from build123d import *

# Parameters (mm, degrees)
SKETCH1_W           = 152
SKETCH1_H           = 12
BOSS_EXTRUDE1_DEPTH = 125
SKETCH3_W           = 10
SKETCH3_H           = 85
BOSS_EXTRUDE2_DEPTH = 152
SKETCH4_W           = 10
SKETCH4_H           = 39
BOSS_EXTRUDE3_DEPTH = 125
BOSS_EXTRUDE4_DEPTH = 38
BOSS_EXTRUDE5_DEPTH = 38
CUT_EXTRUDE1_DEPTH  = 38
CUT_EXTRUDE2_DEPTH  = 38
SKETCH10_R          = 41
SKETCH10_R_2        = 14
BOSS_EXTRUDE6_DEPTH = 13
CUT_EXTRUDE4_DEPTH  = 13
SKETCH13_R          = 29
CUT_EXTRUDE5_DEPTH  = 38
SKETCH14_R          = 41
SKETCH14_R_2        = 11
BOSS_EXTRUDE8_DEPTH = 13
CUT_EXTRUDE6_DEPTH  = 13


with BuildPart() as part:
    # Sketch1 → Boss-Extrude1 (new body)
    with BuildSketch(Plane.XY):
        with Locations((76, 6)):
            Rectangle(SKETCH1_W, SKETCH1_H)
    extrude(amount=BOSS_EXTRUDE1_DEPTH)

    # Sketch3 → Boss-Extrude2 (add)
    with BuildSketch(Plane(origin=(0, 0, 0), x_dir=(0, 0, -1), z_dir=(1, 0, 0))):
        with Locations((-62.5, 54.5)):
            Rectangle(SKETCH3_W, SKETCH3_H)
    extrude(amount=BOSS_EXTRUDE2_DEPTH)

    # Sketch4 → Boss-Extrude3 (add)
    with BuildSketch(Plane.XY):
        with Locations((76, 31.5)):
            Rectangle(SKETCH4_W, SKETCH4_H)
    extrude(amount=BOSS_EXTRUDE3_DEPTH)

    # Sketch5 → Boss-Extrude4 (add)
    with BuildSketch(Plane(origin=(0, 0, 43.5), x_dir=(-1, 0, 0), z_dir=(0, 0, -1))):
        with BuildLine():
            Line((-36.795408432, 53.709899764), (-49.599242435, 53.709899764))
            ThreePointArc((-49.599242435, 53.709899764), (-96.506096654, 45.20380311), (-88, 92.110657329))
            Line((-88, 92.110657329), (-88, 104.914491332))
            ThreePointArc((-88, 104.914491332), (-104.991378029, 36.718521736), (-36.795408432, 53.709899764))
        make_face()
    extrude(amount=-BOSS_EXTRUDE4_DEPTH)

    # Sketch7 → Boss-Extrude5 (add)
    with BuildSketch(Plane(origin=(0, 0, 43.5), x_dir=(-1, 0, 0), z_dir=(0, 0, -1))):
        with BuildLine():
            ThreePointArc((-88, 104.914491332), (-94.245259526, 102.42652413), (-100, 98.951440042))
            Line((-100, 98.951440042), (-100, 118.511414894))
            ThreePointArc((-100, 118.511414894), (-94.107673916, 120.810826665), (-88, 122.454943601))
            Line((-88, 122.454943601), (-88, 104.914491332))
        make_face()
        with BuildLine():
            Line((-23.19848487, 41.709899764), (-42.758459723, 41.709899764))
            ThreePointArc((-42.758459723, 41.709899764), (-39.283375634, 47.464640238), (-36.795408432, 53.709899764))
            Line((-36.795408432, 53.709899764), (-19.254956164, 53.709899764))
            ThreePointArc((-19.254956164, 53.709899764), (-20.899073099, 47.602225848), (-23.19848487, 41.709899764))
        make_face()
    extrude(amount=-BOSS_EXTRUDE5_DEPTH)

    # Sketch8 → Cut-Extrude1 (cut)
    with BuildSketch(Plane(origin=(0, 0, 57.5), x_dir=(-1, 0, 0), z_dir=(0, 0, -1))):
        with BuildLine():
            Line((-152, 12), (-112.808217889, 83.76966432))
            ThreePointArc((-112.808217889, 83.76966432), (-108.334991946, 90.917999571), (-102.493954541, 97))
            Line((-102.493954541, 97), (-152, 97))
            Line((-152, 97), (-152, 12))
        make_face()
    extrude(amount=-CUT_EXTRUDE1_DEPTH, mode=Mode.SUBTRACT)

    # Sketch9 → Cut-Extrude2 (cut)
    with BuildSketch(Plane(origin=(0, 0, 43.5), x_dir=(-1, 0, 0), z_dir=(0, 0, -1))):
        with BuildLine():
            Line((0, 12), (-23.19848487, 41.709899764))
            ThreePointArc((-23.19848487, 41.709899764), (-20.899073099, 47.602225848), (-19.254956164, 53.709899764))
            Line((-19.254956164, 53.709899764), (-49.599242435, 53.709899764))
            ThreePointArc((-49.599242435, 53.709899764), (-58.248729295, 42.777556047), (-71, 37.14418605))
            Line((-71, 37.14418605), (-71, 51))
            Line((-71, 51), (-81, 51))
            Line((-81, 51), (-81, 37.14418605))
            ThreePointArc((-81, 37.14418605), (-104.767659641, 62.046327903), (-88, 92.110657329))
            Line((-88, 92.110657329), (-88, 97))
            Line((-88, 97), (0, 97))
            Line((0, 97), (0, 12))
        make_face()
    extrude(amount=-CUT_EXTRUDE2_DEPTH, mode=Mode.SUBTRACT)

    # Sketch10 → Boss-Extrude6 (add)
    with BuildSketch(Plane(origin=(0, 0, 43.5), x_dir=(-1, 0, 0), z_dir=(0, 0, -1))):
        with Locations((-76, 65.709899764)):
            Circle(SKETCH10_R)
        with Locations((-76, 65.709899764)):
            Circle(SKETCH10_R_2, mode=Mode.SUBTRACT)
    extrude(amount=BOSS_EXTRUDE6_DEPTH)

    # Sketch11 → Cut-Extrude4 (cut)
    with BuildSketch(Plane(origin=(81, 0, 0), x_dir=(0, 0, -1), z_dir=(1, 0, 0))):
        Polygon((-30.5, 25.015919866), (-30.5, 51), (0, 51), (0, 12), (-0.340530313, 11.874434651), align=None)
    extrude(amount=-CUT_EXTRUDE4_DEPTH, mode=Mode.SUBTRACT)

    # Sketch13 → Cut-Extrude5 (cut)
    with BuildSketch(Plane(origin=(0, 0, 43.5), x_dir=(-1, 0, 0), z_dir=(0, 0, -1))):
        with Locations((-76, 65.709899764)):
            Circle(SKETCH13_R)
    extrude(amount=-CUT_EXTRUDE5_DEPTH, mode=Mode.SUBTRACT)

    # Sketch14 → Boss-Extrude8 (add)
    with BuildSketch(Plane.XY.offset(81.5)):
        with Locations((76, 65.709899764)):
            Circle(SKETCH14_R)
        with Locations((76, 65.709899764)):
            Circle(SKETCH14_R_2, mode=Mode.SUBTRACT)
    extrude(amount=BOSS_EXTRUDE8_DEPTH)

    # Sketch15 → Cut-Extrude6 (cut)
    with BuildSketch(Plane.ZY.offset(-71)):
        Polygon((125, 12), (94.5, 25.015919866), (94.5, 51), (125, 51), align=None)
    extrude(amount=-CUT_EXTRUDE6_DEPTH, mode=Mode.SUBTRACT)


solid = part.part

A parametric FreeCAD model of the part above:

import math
import FreeCAD as App
import Part
import Sketcher


def add_polygon(sketch, points):
    """Adds a closed chain of lines whose ends are joined by coincident constraints."""
    first, n = sketch.GeometryCount, len(points)
    for a, b in zip(points, points[1:] + points[:1]):
        sketch.addGeometry(Part.LineSegment(App.Vector(*a, 0), App.Vector(*b, 0)), False)
    for i in range(n):
        sketch.addConstraint(Sketcher.Constraint("Coincident", first + i, 2, first + (i + 1) % n, 1))

doc = App.newDocument("Part")
body = doc.addObject("PartDesign::Body", "Body")

# Sketch on XY plane
sketch1 = doc.addObject("Sketcher::SketchObject", "Sketch")
body.addObject(sketch1)
sketch1.AttachmentSupport = (doc.XY_Plane, [""])
sketch1.MapMode = "FlatFace"
add_polygon(sketch1, [(0, 12), (0, 0), (152, 0), (152, 12)])  # lines 0-3
sketch1.addConstraint([
    Sketcher.Constraint("Vertical", 0),
    Sketcher.Constraint("Horizontal", 1),
    Sketcher.Constraint("Vertical", 2),
    Sketcher.Constraint("Horizontal", 3),
    Sketcher.Constraint("Coincident", 0, 2, -1, 1),
    Sketcher.Constraint("DistanceX", 1, 1, 1, 2, 152.0),
    Sketcher.Constraint("DistanceY", 0, 2, 0, 1, 12.0),
])
pad1 = doc.addObject("PartDesign::Pad", "Pad")
body.addObject(pad1)
pad1.Profile = sketch1
pad1.Length = 125

# Sketch on YZ plane
sketch2 = doc.addObject("Sketcher::SketchObject", "Sketch001")
body.addObject(sketch2)
sketch2.AttachmentSupport = (doc.YZ_Plane, [""])
sketch2.MapMode = "FlatFace"
add_polygon(sketch2, [(97, 67.5), (12, 67.5), (12, 57.5), (97, 57.5)])  # lines 0-3
sketch2.addConstraint([
    Sketcher.Constraint("Horizontal", 0),
    Sketcher.Constraint("Vertical", 1),
    Sketcher.Constraint("Horizontal", 2),
    Sketcher.Constraint("Vertical", 3),
    Sketcher.Constraint("DistanceX", 0, 2, 0, 1, 85.0),
    Sketcher.Constraint("DistanceY", 1, 2, 1, 1, 10.0),
    Sketcher.Constraint("DistanceX", -1, 1, 0, 2, 12.0),
    Sketcher.Constraint("DistanceY", -1, 1, 0, 2, 67.5),
])
pad2 = doc.addObject("PartDesign::Pad", "Pad001")
body.addObject(pad2)
pad2.Profile = sketch2
pad2.Length = 152

# Sketch on XY plane
sketch3 = doc.addObject("Sketcher::SketchObject", "Sketch002")
body.addObject(sketch3)
sketch3.AttachmentSupport = (doc.XY_Plane, [""])
sketch3.MapMode = "FlatFace"
add_polygon(sketch3, [(71, 51), (71, 12), (81, 12), (81, 51)])  # lines 0-3
sketch3.addConstraint([
    Sketcher.Constraint("Vertical", 0),
    Sketcher.Constraint("Horizontal", 1),
    Sketcher.Constraint("Vertical", 2),
    Sketcher.Constraint("Horizontal", 3),
    Sketcher.Constraint("DistanceX", 1, 1, 1, 2, 10.0),
    Sketcher.Constraint("DistanceY", 0, 2, 0, 1, 39.0),
    Sketcher.Constraint("DistanceX", -1, 1, 0, 2, 71.0),
    Sketcher.Constraint("DistanceY", -1, 1, 0, 2, 12.0),
])
pad3 = doc.addObject("PartDesign::Pad", "Pad002")
body.addObject(pad3)
pad3.Profile = sketch3
pad3.Length = 125

# Sketch on XY plane
sketch4 = doc.addObject("Sketcher::SketchObject", "Sketch003")
body.addObject(sketch4)
sketch4.AttachmentSupport = (doc.XY_Plane, [""])
sketch4.MapMode = "FlatFace"
sketch4.AttachmentOffset = App.Placement(App.Vector(0, 0, 43.5), App.Rotation())
sketch4.addGeometry([
    Part.LineSegment(App.Vector(36.795408, 53.7099, 0), App.Vector(49.599242, 53.7099, 0)),
    Part.ArcOfCircle(Part.Circle(App.Vector(76, 65.7099, 0), App.Vector(0, 0, 1), 29), math.radians(-155.556665), math.radians(65.556665)),
    Part.LineSegment(App.Vector(88, 92.110657, 0), App.Vector(88, 104.914491, 0)),
    Part.ArcOfCircle(Part.Circle(App.Vector(76, 65.7099, 0), App.Vector(0, 0, 1), 41), math.radians(-162.981353), math.radians(72.981353)),
], False)
sketch4.addConstraint([
    Sketcher.Constraint("Coincident", 0, 2, 1, 1),
    Sketcher.Constraint("Coincident", 1, 2, 2, 1),
    Sketcher.Constraint("Coincident", 2, 2, 3, 2),
    Sketcher.Constraint("Coincident", 3, 1, 0, 1),
    Sketcher.Constraint("Horizontal", 0),
    Sketcher.Constraint("Vertical", 2),
    Sketcher.Constraint("Coincident", 3, 3, 1, 3),
    Sketcher.Constraint("Equal", 0, 2),
    Sketcher.Constraint("Radius", 1, 29.0),
    Sketcher.Constraint("Radius", 3, 41.0),
    Sketcher.Constraint("DistanceX", -1, 1, 1, 3, 76.0),
    Sketcher.Constraint("DistanceX", -1, 1, 1, 2, 88.0),
    Sketcher.Constraint("DistanceY", -1, 1, 1, 3, 65.7099),
])
pad4 = doc.addObject("PartDesign::Pad", "Pad003")
body.addObject(pad4)
pad4.Profile = sketch4
pad4.Length = 38

# Sketch on XY plane
sketch5 = doc.addObject("Sketcher::SketchObject", "Sketch004")
body.addObject(sketch5)
sketch5.AttachmentSupport = (doc.XY_Plane, [""])
sketch5.MapMode = "FlatFace"
sketch5.AttachmentOffset = App.Placement(App.Vector(0, 0, 43.5), App.Rotation())
sketch5.addGeometry([
    Part.ArcOfCircle(Part.Circle(App.Vector(76, 65.7099, 0), App.Vector(0, 0, 1), 41), math.radians(54.17116), math.radians(72.981353)),  # 0
    Part.LineSegment(App.Vector(88, 104.914491, 0), App.Vector(88, 122.454944, 0)),  # 1
    Part.ArcOfCircle(Part.Circle(App.Vector(76, 65.7099, 0), App.Vector(0, 0, 1), 58), math.radians(65.556665), math.radians(78.059456)),  # 2
    Part.LineSegment(App.Vector(100, 118.511415, 0), App.Vector(100, 98.95144, 0)),  # 3
    Part.LineSegment(App.Vector(42.75846, 41.7099, 0), App.Vector(23.198485, 41.7099, 0)),  # 4
    Part.ArcOfCircle(Part.Circle(App.Vector(76, 65.7099, 0), App.Vector(0, 0, 1), 58), math.radians(-168.059456), math.radians(-155.556665)),  # 5
    Part.LineSegment(App.Vector(19.254956, 53.7099, 0), App.Vector(36.795408, 53.7099, 0)),  # 6
    Part.ArcOfCircle(Part.Circle(App.Vector(76, 65.7099, 0), App.Vector(0, 0, 1), 41), math.radians(-162.981353), math.radians(-144.17116)),  # 7
], False)
sketch5.addConstraint([
    Sketcher.Constraint("Coincident", 0, 2, 1, 1),
    Sketcher.Constraint("Coincident", 1, 2, 2, 2),
    Sketcher.Constraint("Coincident", 2, 1, 3, 1),
    Sketcher.Constraint("Coincident", 3, 2, 0, 1),
    Sketcher.Constraint("Coincident", 4, 2, 5, 2),
    Sketcher.Constraint("Coincident", 5, 1, 6, 1),
    Sketcher.Constraint("Coincident", 6, 2, 7, 1),
    Sketcher.Constraint("Coincident", 7, 2, 4, 1),
    Sketcher.Constraint("Vertical", 1),
    Sketcher.Constraint("Vertical", 3),
    Sketcher.Constraint("Horizontal", 4),
    Sketcher.Constraint("Horizontal", 6),
    Sketcher.Constraint("Coincident", 2, 3, 0, 3),
    Sketcher.Constraint("Coincident", 5, 3, 0, 3),
    Sketcher.Constraint("Coincident", 7, 3, 0, 3),
    Sketcher.Constraint("Equal", 2, 5),
    Sketcher.Constraint("Equal", 0, 7),
    Sketcher.Constraint("Equal", 6, 1),
    Sketcher.Constraint("Equal", 4, 3),
    Sketcher.Constraint("Radius", 0, 41.0),
    Sketcher.Constraint("Radius", 2, 58.0),
    Sketcher.Constraint("DistanceX", -1, 1, 0, 3, 76.0),
    Sketcher.Constraint("DistanceX", -1, 1, 0, 2, 88.0),
    Sketcher.Constraint("DistanceX", -1, 1, 2, 1, 100.0),
    Sketcher.Constraint("DistanceY", -1, 1, 0, 3, 65.7099),
])
pad5 = doc.addObject("PartDesign::Pad", "Pad004")
body.addObject(pad5)
pad5.Profile = sketch5
pad5.Length = 38

# Sketch on XY plane
sketch6 = doc.addObject("Sketcher::SketchObject", "Sketch005")
body.addObject(sketch6)
sketch6.AttachmentSupport = (doc.XY_Plane, [""])
sketch6.MapMode = "FlatFace"
sketch6.AttachmentOffset = App.Placement(App.Vector(0, 0, 57.5), App.Rotation())
sketch6.addGeometry([
    Part.LineSegment(App.Vector(152, 12, 0), App.Vector(112.808218, 83.769664, 0)),
    Part.ArcOfCircle(Part.Circle(App.Vector(76, 65.7099, 0), App.Vector(0, 0, 1), 41), math.radians(26.134643), math.radians(49.744742)),
    Part.LineSegment(App.Vector(102.493955, 97, 0), App.Vector(152, 97, 0)),
    Part.LineSegment(App.Vector(152, 97, 0), App.Vector(152, 12, 0)),
], False)
sketch6.addConstraint([
    Sketcher.Constraint("Coincident", 0, 2, 1, 1),
    Sketcher.Constraint("Coincident", 1, 2, 2, 1),
    Sketcher.Constraint("Coincident", 2, 2, 3, 1),
    Sketcher.Constraint("Coincident", 3, 2, 0, 1),
    Sketcher.Constraint("Horizontal", 2),
    Sketcher.Constraint("Vertical", 3),
    Sketcher.Constraint("Radius", 1, 41.0),
    Sketcher.Constraint("DistanceY", 3, 2, 3, 1, 85.0),
    Sketcher.Constraint("DistanceX", -1, 1, 1, 3, 76.0),
    Sketcher.Constraint("DistanceY", -1, 1, 1, 2, 97.0),
    Sketcher.Constraint("DistanceX", -1, 1, 2, 2, 152.0),
    Sketcher.Constraint("DistanceY", -1, 1, 1, 3, 65.7099),
    Sketcher.Constraint("Distance", 0, 81.773348),
])
pocket1 = doc.addObject("PartDesign::Pocket", "Pocket")
body.addObject(pocket1)
pocket1.Profile = sketch6
pocket1.Length = 38
pocket1.Reversed = True

# Sketch on XY plane
sketch7 = doc.addObject("Sketcher::SketchObject", "Sketch006")
body.addObject(sketch7)
sketch7.AttachmentSupport = (doc.XY_Plane, [""])
sketch7.MapMode = "FlatFace"
sketch7.AttachmentOffset = App.Placement(App.Vector(0, 0, 43.5), App.Rotation())
sketch7.addGeometry([
    Part.LineSegment(App.Vector(23.198485, 41.7099, 0), App.Vector(0, 12, 0)),  # 0
    Part.LineSegment(App.Vector(0, 12, 0), App.Vector(0, 97, 0)),  # 1
    Part.LineSegment(App.Vector(0, 97, 0), App.Vector(88, 97, 0)),  # 2
    Part.LineSegment(App.Vector(88, 97, 0), App.Vector(88, 92.110657, 0)),  # 3
    Part.ArcOfCircle(Part.Circle(App.Vector(76, 65.7099, 0), App.Vector(0, 0, 1), 29), math.radians(-80.071808), math.radians(65.556665)),  # 4
    Part.LineSegment(App.Vector(81, 37.144186, 0), App.Vector(81, 51, 0)),  # 5
    Part.LineSegment(App.Vector(81, 51, 0), App.Vector(71, 51, 0)),  # 6
    Part.LineSegment(App.Vector(71, 51, 0), App.Vector(71, 37.144186, 0)),  # 7
    Part.ArcOfCircle(Part.Circle(App.Vector(76, 65.7099, 0), App.Vector(0, 0, 1), 29), math.radians(-155.556665), math.radians(-99.928192)),  # 8
    Part.LineSegment(App.Vector(49.599242, 53.7099, 0), App.Vector(19.254956, 53.7099, 0)),  # 9
    Part.ArcOfCircle(Part.Circle(App.Vector(76, 65.7099, 0), App.Vector(0, 0, 1), 58), math.radians(-168.059456), math.radians(-155.556665)),  # 10
], False)
sketch7.addConstraint([
    Sketcher.Constraint("Coincident", 0, 2, 1, 1),
    Sketcher.Constraint("Coincident", 1, 2, 2, 1),
    Sketcher.Constraint("Coincident", 2, 2, 3, 1),
    Sketcher.Constraint("Coincident", 3, 2, 4, 2),
    Sketcher.Constraint("Coincident", 4, 1, 5, 1),
    Sketcher.Constraint("Coincident", 5, 2, 6, 1),
    Sketcher.Constraint("Coincident", 6, 2, 7, 1),
    Sketcher.Constraint("Coincident", 7, 2, 8, 2),
    Sketcher.Constraint("Coincident", 8, 1, 9, 1),
    Sketcher.Constraint("Coincident", 9, 2, 10, 1),
    Sketcher.Constraint("Coincident", 10, 2, 0, 1),
    Sketcher.Constraint("Vertical", 1),
    Sketcher.Constraint("Horizontal", 2),
    Sketcher.Constraint("Vertical", 3),
    Sketcher.Constraint("Vertical", 5),
    Sketcher.Constraint("Horizontal", 6),
    Sketcher.Constraint("Vertical", 7),
    Sketcher.Constraint("Horizontal", 9),
    Sketcher.Constraint("Coincident", 8, 3, 4, 3),
    Sketcher.Constraint("Coincident", 10, 3, 4, 3),
    Sketcher.Constraint("Equal", 4, 8),
    Sketcher.Constraint("PointOnObject", 0, 2, -2),
    Sketcher.Constraint("Horizontal", 4, 1, 7, 2),
    Sketcher.Constraint("Radius", 4, 29.0),
    Sketcher.Constraint("Radius", 10, 58.0),
    Sketcher.Constraint("DistanceX", 2, 1, 2, 2, 88.0),
    Sketcher.Constraint("DistanceX", 6, 2, 6, 1, 10.0),
    Sketcher.Constraint("DistanceY", 1, 1, 1, 2, 85.0),
    Sketcher.Constraint("DistanceX", -1, 1, 4, 3, 76.0),
    Sketcher.Constraint("DistanceY", -1, 1, 0, 2, 12.0),
    Sketcher.Constraint("DistanceY", -1, 1, 5, 2, 51.0),
    Sketcher.Constraint("DistanceY", 8, 1, 10, 3, 12.0),
    Sketcher.Constraint("DistanceY", 10, 2, 9, 2, 12.0),
    Sketcher.Constraint("DistanceY", -1, 1, 4, 3, 65.7099),
])
pocket2 = doc.addObject("PartDesign::Pocket", "Pocket001")
body.addObject(pocket2)
pocket2.Profile = sketch7
pocket2.Length = 38
pocket2.Reversed = True

# Sketch on XY plane
sketch8 = doc.addObject("Sketcher::SketchObject", "Sketch007")
body.addObject(sketch8)
sketch8.AttachmentSupport = (doc.XY_Plane, [""])
sketch8.MapMode = "FlatFace"
sketch8.AttachmentOffset = App.Placement(App.Vector(0, 0, 43.5), App.Rotation())
sketch8.addGeometry([
    Part.Circle(App.Vector(76, 65.7099, 0), App.Vector(0, 0, 1), 41),
    Part.Circle(App.Vector(76, 65.7099, 0), App.Vector(0, 0, 1), 14),
], False)
sketch8.addConstraint([
    Sketcher.Constraint("Coincident", 1, 3, 0, 3),
    Sketcher.Constraint("Diameter", 0, 82.0),
    Sketcher.Constraint("Diameter", 1, 28.0),
    Sketcher.Constraint("DistanceX", -1, 1, 0, 3, 76.0),
    Sketcher.Constraint("DistanceY", -1, 1, 0, 3, 65.7099),
])
pad6 = doc.addObject("PartDesign::Pad", "Pad005")
body.addObject(pad6)
pad6.Profile = sketch8
pad6.Length = 13
pad6.Reversed = True

# Sketch on YZ plane
sketch9 = doc.addObject("Sketcher::SketchObject", "Sketch008")
body.addObject(sketch9)
sketch9.AttachmentSupport = (doc.YZ_Plane, [""])
sketch9.MapMode = "FlatFace"
sketch9.AttachmentOffset = App.Placement(App.Vector(0, 0, 81), App.Rotation())
add_polygon(sketch9, [(51, 30.5), (25.01592, 30.5), (11.874435, 0.34053), (12, 0), (51, 0)])  # lines 0-4
sketch9.addConstraint([
    Sketcher.Constraint("Horizontal", 0),
    Sketcher.Constraint("Horizontal", 3),
    Sketcher.Constraint("Vertical", 4),
    Sketcher.Constraint("PointOnObject", 2, 2, -1),
    Sketcher.Constraint("DistanceX", 3, 1, 3, 2, 39.0),
    Sketcher.Constraint("DistanceY", 4, 1, 4, 2, 30.5),
    Sketcher.Constraint("DistanceX", -1, 1, 2, 2, 12.0),
    Sketcher.Constraint("DistanceX", 0, 2, 0, 1, 25.98408),
    Sketcher.Constraint("Distance", 1, 32.89821),
    Sketcher.Constraint("DistanceY", -1, 1, 1, 2, 0.34053),
])
pocket3 = doc.addObject("PartDesign::Pocket", "Pocket002")
body.addObject(pocket3)
pocket3.Profile = sketch9
pocket3.Length = 13

# Sketch on XY plane
sketch10 = doc.addObject("Sketcher::SketchObject", "Sketch009")
body.addObject(sketch10)
sketch10.AttachmentSupport = (doc.XY_Plane, [""])
sketch10.MapMode = "FlatFace"
sketch10.AttachmentOffset = App.Placement(App.Vector(0, 0, 43.5), App.Rotation())
sketch10.addGeometry(Part.Circle(App.Vector(76, 65.7099, 0), App.Vector(0, 0, 1), 29), False)
sketch10.addConstraint([
    Sketcher.Constraint("Diameter", 0, 58.0),
    Sketcher.Constraint("DistanceX", -1, 1, 0, 3, 76.0),
    Sketcher.Constraint("DistanceY", -1, 1, 0, 3, 65.7099),
])
pocket4 = doc.addObject("PartDesign::Pocket", "Pocket003")
body.addObject(pocket4)
pocket4.Profile = sketch10
pocket4.Length = 38
pocket4.Reversed = True

# Sketch on XY plane
sketch11 = doc.addObject("Sketcher::SketchObject", "Sketch010")
body.addObject(sketch11)
sketch11.AttachmentSupport = (doc.XY_Plane, [""])
sketch11.MapMode = "FlatFace"
sketch11.AttachmentOffset = App.Placement(App.Vector(0, 0, 81.5), App.Rotation())
sketch11.addGeometry([
    Part.Circle(App.Vector(76, 65.7099, 0), App.Vector(0, 0, 1), 41),
    Part.Circle(App.Vector(76, 65.7099, 0), App.Vector(0, 0, 1), 11),
], False)
sketch11.addConstraint([
    Sketcher.Constraint("Coincident", 1, 3, 0, 3),
    Sketcher.Constraint("Diameter", 0, 82.0),
    Sketcher.Constraint("Diameter", 1, 22.0),
    Sketcher.Constraint("DistanceX", -1, 1, 0, 3, 76.0),
    Sketcher.Constraint("DistanceY", -1, 1, 0, 3, 65.7099),
])
pad7 = doc.addObject("PartDesign::Pad", "Pad006")
body.addObject(pad7)
pad7.Profile = sketch11
pad7.Length = 13

# Sketch on YZ plane
sketch12 = doc.addObject("Sketcher::SketchObject", "Sketch011")
body.addObject(sketch12)
sketch12.AttachmentSupport = (doc.YZ_Plane, [""])
sketch12.MapMode = "FlatFace"
sketch12.AttachmentOffset = App.Placement(App.Vector(0, 0, 71), App.Rotation())
add_polygon(sketch12, [(25.01592, 94.5), (12, 125), (51, 125), (51, 94.5)])  # lines 0-3
sketch12.addConstraint([
    Sketcher.Constraint("Horizontal", 1),
    Sketcher.Constraint("Vertical", 2),
    Sketcher.Constraint("Horizontal", 3),
    Sketcher.Constraint("DistanceX", 1, 1, 1, 2, 39.0),
    Sketcher.Constraint("DistanceY", 2, 2, 2, 1, 30.5),
    Sketcher.Constraint("DistanceX", -1, 1, 0, 2, 12.0),
    Sketcher.Constraint("DistanceY", -1, 1, 0, 2, 125.0),
    Sketcher.Constraint("DistanceX", 3, 2, 3, 1, 25.98408),
])
pocket5 = doc.addObject("PartDesign::Pocket", "Pocket004")
body.addObject(pocket5)
pocket5.Profile = sketch12
pocket5.Length = 13
pocket5.Reversed = True

doc.recompute()
